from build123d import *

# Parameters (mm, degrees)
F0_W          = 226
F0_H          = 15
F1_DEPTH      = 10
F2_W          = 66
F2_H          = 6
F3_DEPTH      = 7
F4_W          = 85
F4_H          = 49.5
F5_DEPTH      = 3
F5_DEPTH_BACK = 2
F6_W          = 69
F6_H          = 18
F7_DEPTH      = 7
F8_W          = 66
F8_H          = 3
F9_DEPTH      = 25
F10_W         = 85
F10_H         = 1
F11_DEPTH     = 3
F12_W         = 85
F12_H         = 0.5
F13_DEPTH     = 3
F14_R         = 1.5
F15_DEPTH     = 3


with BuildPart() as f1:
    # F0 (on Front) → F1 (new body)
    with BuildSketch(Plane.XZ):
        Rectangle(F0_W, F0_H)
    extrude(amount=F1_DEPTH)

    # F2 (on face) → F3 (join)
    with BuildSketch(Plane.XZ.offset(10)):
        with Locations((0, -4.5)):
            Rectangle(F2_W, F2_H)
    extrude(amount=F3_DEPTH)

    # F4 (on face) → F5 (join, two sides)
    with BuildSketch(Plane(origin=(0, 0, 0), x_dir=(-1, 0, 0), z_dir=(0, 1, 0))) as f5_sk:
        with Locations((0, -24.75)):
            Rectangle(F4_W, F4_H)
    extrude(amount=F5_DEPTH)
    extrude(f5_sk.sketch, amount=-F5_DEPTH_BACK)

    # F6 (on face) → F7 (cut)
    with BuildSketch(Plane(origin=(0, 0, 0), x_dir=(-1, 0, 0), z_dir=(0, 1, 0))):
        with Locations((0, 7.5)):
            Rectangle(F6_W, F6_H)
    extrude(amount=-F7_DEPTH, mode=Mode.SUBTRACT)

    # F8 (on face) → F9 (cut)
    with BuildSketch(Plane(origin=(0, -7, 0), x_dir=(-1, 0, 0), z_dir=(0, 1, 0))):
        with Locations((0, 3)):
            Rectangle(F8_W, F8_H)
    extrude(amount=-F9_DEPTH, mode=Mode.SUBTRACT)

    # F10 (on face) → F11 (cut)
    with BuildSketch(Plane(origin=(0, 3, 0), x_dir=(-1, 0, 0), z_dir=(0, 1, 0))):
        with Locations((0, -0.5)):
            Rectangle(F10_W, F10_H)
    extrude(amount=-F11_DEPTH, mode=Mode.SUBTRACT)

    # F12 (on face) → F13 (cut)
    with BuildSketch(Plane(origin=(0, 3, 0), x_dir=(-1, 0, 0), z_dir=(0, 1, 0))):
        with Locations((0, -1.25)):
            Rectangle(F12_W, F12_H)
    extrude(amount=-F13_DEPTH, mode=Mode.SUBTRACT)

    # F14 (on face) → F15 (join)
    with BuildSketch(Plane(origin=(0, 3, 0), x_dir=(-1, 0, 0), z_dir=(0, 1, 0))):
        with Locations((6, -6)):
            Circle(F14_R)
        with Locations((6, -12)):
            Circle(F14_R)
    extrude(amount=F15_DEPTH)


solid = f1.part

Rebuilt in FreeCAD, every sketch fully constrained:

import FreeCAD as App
import Part
import Sketcher


def add_polygon(sketch, points):
    """Adds a closed chain of lines whose ends are joined by coincident constraints."""
    first, n = sketch.GeometryCount, len(points)
    for a, b in zip(points, points[1:] + points[:1]):
        sketch.addGeometry(Part.LineSegment(App.Vector(*a, 0), App.Vector(*b, 0)), False)
    for i in range(n):
        sketch.addConstraint(Sketcher.Constraint("Coincident", first + i, 2, first + (i + 1) % n, 1))

doc = App.newDocument("Part")
params = doc.addObject("Spreadsheet::Sheet", "Params")
for row, (alias, value) in enumerate([
    ("sketch1_width", "226 mm"),
    ("sketch1_height", "15 mm"),
    ("pad1_length", "10 mm"),
    ("sketch2_width", "66 mm"),
    ("sketch2_height", "6 mm"),
    ("pad2_length", "7 mm"),
    ("sketch3_width", "85 mm"),
    ("sketch3_height", "49.5 mm"),
    ("pad3_length", "3 mm"),
    ("pad3_length2", "2 mm"),
    ("sketch4_width", "69 mm"),
    ("sketch4_height", "18 mm"),
    ("pocket1_length", "7 mm"),
    ("sketch5_width", "66 mm"),
    ("sketch5_height", "3 mm"),
    ("pocket2_length", "25 mm"),
    ("sketch6_width", "85 mm"),
    ("sketch6_height", "1 mm"),
    ("pocket3_length", "3 mm"),
    ("sketch7_width", "85 mm"),
    ("sketch7_height", "0.5 mm"),
    ("pocket4_length", "3 mm"),
    ("sketch8_diameter", "3 mm"),
    ("pad4_length", "3 mm"),
], start=1):
    params.set(f"A{row}", alias)
    params.set(f"B{row}", "=" + value)
    params.setAlias(f"B{row}", alias)

body = doc.addObject("PartDesign::Body", "Body")

# Sketch on XZ plane
sketch1 = doc.addObject("Sketcher::SketchObject", "Sketch")
body.addObject(sketch1)
sketch1.AttachmentSupport = (doc.XZ_Plane, [""])
sketch1.MapMode = "FlatFace"
add_polygon(sketch1, [(-113, 7.5), (-113, -7.5), (113, -7.5), (113, 7.5)])  # lines 0-3
sketch1.addConstraint([
    Sketcher.Constraint("Vertical", 0),
    Sketcher.Constraint("Horizontal", 1),
    Sketcher.Constraint("Vertical", 2),
    Sketcher.Constraint("Horizontal", 3),
    Sketcher.Constraint("Symmetric", 0, 2, 2, 2, -1, 1),
    Sketcher.Constraint("DistanceX", 1, 1, 1, 2, 226.0),
    Sketcher.Constraint("DistanceY", 0, 2, 0, 1, 15.0),
])
sketch1.setExpression("Constraints[9]", "Params.sketch1_width")
sketch1.setExpression("Constraints[10]", "Params.sketch1_height")
pad1 = doc.addObject("PartDesign::Pad", "Pad")
body.addObject(pad1)
pad1.Profile = sketch1
pad1.setExpression("Length", "Params.pad1_length")

# Sketch on XZ plane
sketch2 = doc.addObject("Sketcher::SketchObject", "Sketch001")
body.addObject(sketch2)
sketch2.AttachmentSupport = (doc.XZ_Plane, [""])
sketch2.MapMode = "FlatFace"
sketch2.AttachmentOffset = App.Placement(App.Vector(0, 0, 10), App.Rotation())
add_polygon(sketch2, [(-33, -1.5), (-33, -7.5), (33, -7.5), (33, -1.5)])  # lines 0-3
sketch2.addConstraint([
    Sketcher.Constraint("Vertical", 0),
    Sketcher.Constraint("Horizontal", 1),
    Sketcher.Constraint("Vertical", 2),
    Sketcher.Constraint("Horizontal", 3),
    Sketcher.Constraint("DistanceX", 1, 1, 1, 2, 66.0),
    Sketcher.Constraint("DistanceY", 0, 2, 0, 1, 6.0),
    Sketcher.Constraint("DistanceX", 0, 2, -1, 1, 33.0),
    Sketcher.Constraint("DistanceY", 0, 2, -1, 1, 7.5),
])
sketch2.setExpression("Constraints[8]", "Params.sketch2_width")
sketch2.setExpression("Constraints[9]", "Params.sketch2_height")
pad2 = doc.addObject("PartDesign::Pad", "Pad001")
body.addObject(pad2)
pad2.Profile = sketch2
pad2.setExpression("Length", "Params.pad2_length")

# Sketch on XZ plane
sketch3 = doc.addObject("Sketcher::SketchObject", "Sketch002")
body.addObject(sketch3)
sketch3.AttachmentSupport = (doc.XZ_Plane, [""])
sketch3.MapMode = "FlatFace"
add_polygon(sketch3, [(42.5, 0), (42.5, -49.5), (-42.5, -49.5), (-42.5, 0)])  # lines 0-3
sketch3.addConstraint([
    Sketcher.Constraint("Vertical", 0),
    Sketcher.Constraint("Horizontal", 1),
    Sketcher.Constraint("Vertical", 2),
    Sketcher.Constraint("Horizontal", 3),
    Sketcher.Constraint("Symmetric", 2, 2, 3, 2, -1, 1),
    Sketcher.Constraint("DistanceX", 1, 2, 1, 1, 85.0),
    Sketcher.Constraint("DistanceY", 0, 2, 0, 1, 49.5),
])
sketch3.setExpression("Constraints[9]", "Params.sketch3_width")
sketch3.setExpression("Constraints[10]", "Params.sketch3_height")
pad3 = doc.addObject("PartDesign::Pad", "Pad002")
body.addObject(pad3)
pad3.Profile = sketch3
pad3.Type = "TwoLengths"
pad3.setExpression("Length", "Params.pad3_length")
pad3.setExpression("Length2", "Params.pad3_length2")
pad3.Reversed = True

# Sketch on XZ plane
sketch4 = doc.addObject("Sketcher::SketchObject", "Sketch003")
body.addObject(sketch4)
sketch4.AttachmentSupport = (doc.XZ_Plane, [""])
sketch4.MapMode = "FlatFace"
add_polygon(sketch4, [(34.5, 16.5), (34.5, -1.5), (-34.5, -1.5), (-34.5, 16.5)])  # lines 0-3
sketch4.addConstraint([
    Sketcher.Constraint("Vertical", 0),
    Sketcher.Constraint("Horizontal", 1),
    Sketcher.Constraint("Vertical", 2),
    Sketcher.Constraint("Horizontal", 3),
    Sketcher.Constraint("DistanceX", 1, 2, 1, 1, 69.0),
    Sketcher.Constraint("DistanceY", 0, 2, 0, 1, 18.0),
    Sketcher.Constraint("DistanceX", -1, 1, 0, 2, 34.5),
    Sketcher.Constraint("DistanceY", 0, 2, -1, 1, 1.5),
])
sketch4.setExpression("Constraints[8]", "Params.sketch4_width")
sketch4.setExpression("Constraints[9]", "Params.sketch4_height")
pocket1 = doc.addObject("PartDesign::Pocket", "Pocket")
body.addObject(pocket1)
pocket1.Profile = sketch4
pocket1.setExpression("Length", "Params.pocket1_length")
pocket1.Reversed = True

# Sketch on XZ plane
sketch5 = doc.addObject("Sketcher::SketchObject", "Sketch004")
body.addObject(sketch5)
sketch5.AttachmentSupport = (doc.XZ_Plane, [""])
sketch5.MapMode = "FlatFace"
sketch5.AttachmentOffset = App.Placement(App.Vector(0, 0, 7), App.Rotation())
add_polygon(sketch5, [(33, 4.5), (33, 1.5), (-33, 1.5), (-33, 4.5)])  # lines 0-3
sketch5.addConstraint([
    Sketcher.Constraint("Vertical", 0),
    Sketcher.Constraint("Horizontal", 1),
    Sketcher.Constraint("Vertical", 2),
    Sketcher.Constraint("Horizontal", 3),
    Sketcher.Constraint("DistanceX", 1, 2, 1, 1, 66.0),
    Sketcher.Constraint("DistanceY", 0, 2, 0, 1, 3.0),
    Sketcher.Constraint("DistanceX", -1, 1, 0, 2, 33.0),
    Sketcher.Constraint("DistanceY", -1, 1, 0, 2, 1.5),
])
sketch5.setExpression("Constraints[8]", "Params.sketch5_width")
sketch5.setExpression("Constraints[9]", "Params.sketch5_height")
pocket2 = doc.addObject("PartDesign::Pocket", "Pocket001")
body.addObject(pocket2)
pocket2.Profile = sketch5
pocket2.setExpression("Length", "Params.pocket2_length")
pocket2.Reversed = True

# Sketch on XZ plane
sketch6 = doc.addObject("Sketcher::SketchObject", "Sketch005")
body.addObject(sketch6)
sketch6.AttachmentSupport = (doc.XZ_Plane, [""])
sketch6.MapMode = "FlatFace"
sketch6.AttachmentOffset = App.Placement(App.Vector(0, 0, -3), App.Rotation())
add_polygon(sketch6, [(42.5, 0), (42.5, -1), (-42.5, -1), (-42.5, 0)])  # lines 0-3
sketch6.addConstraint([
    Sketcher.Constraint("Vertical", 0),
    Sketcher.Constraint("Horizontal", 1),
    Sketcher.Constraint("Vertical", 2),
    Sketcher.Constraint("Horizontal", 3),
    Sketcher.Constraint("Symmetric", 2, 2, 3, 2, -1, 1),
    Sketcher.Constraint("DistanceX", 1, 2, 1, 1, 85.0),
    Sketcher.Constraint("DistanceY", 0, 2, 0, 1, 1.0),
])
sketch6.setExpression("Constraints[9]", "Params.sketch6_width")
sketch6.setExpression("Constraints[10]", "Params.sketch6_height")
pocket3 = doc.addObject("PartDesign::Pocket", "Pocket002")
body.addObject(pocket3)
pocket3.Profile = sketch6
pocket3.setExpression("Length", "Params.pocket3_length")
pocket3.Reversed = True

# Sketch on XZ plane
sketch7 = doc.addObject("Sketcher::SketchObject", "Sketch006")
body.addObject(sketch7)
sketch7.AttachmentSupport = (doc.XZ_Plane, [""])
sketch7.MapMode = "FlatFace"
sketch7.AttachmentOffset = App.Placement(App.Vector(0, 0, -3), App.Rotation())
add_polygon(sketch7, [(42.5, -1), (42.5, -1.5), (-42.5, -1.5), (-42.5, -1)])  # lines 0-3
sketch7.addConstraint([
    Sketcher.Constraint("Vertical", 0),
    Sketcher.Constraint("Horizontal", 1),
    Sketcher.Constraint("Vertical", 2),
    Sketcher.Constraint("Horizontal", 3),
    Sketcher.Constraint("DistanceX", 1, 2, 1, 1, 85.0),
    Sketcher.Constraint("DistanceY", 0, 2, 0, 1, 0.5),
    Sketcher.Constraint("DistanceY", 2, 2, -1, 1, 1.0),
    Sketcher.Constraint("DistanceX", -1, 1, 0, 2, 42.5),
])
sketch7.setExpression("Constraints[8]", "Params.sketch7_width")
sketch7.setExpression("Constraints[9]", "Params.sketch7_height")
pocket4 = doc.addObject("PartDesign::Pocket", "Pocket003")
body.addObject(pocket4)
pocket4.Profile = sketch7
pocket4.setExpression("Length", "Params.pocket4_length")
pocket4.Reversed = True

# Sketch on XZ plane
sketch8 = doc.addObject("Sketcher::SketchObject", "Sketch007")
body.addObject(sketch8)
sketch8.AttachmentSupport = (doc.XZ_Plane, [""])
sketch8.MapMode = "FlatFace"
sketch8.AttachmentOffset = App.Placement(App.Vector(0, 0, -3), App.Rotation())
sketch8.addGeometry([
    Part.Circle(App.Vector(-6, -6, 0), App.Vector(0, 0, 1), 1.5),
    Part.Circle(App.Vector(-6, -12, 0), App.Vector(0, 0, 1), 1.5),
], False)
sketch8.addConstraint([
    Sketcher.Constraint("Equal", 0, 1),
    Sketcher.Constraint("Vertical", 0, 3, 1, 3),
    Sketcher.Constraint("Diameter", 0, 3.0),
    Sketcher.Constraint("DistanceX", 0, 3, -1, 1, 6.0),
    Sketcher.Constraint("DistanceY", 0, 3, -1, 1, 6.0),
    Sketcher.Constraint("DistanceY", 1, 3, -1, 1, 12.0),
])
sketch8.setExpression("Constraints[2]", "Params.sketch8_diameter")
pad4 = doc.addObject("PartDesign::Pad", "Pad003")
body.addObject(pad4)
pad4.Profile = sketch8
pad4.setExpression("Length", "Params.pad4_length")
pad4.Reversed = True

doc.recompute()
